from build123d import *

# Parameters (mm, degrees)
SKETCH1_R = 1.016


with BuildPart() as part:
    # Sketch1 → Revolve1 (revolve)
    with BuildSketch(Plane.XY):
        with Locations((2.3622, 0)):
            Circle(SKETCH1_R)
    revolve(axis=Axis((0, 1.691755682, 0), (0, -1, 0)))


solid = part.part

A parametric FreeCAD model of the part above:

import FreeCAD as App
import Part
import Sketcher
Q = App.Units.Quantity

doc = App.newDocument("Part")
body = doc.addObject("PartDesign::Body", "Body")

# Sketch on XY plane
sketch1 = body.newObject("Sketcher::SketchObject", "Sketch")
sketch1.AttachmentSupport = (doc.getObject("XY_Plane"), [""])
sketch1.MapMode = "FlatFace"
sketch1.addGeometry(Part.Circle(App.Vector(2.3622, 0, 0), App.Vector(0, 0, 1), 1.016), False)
sketch1.addConstraint([
    Sketcher.Constraint("PointOnObject", 0, 3, -1),
    Sketcher.Constraint("Diameter", 0, Q("0.08 in")),
    Sketcher.Constraint("DistanceX", -1, 1, 0, 3, Q("0.093 in")),
])
revolution = body.newObject("PartDesign::Revolution", "Revolution")
revolution.Profile = sketch1
revolution.ReferenceAxis = (sketch1, ["V_Axis"])
revolution.Angle = 360

doc.recompute()
